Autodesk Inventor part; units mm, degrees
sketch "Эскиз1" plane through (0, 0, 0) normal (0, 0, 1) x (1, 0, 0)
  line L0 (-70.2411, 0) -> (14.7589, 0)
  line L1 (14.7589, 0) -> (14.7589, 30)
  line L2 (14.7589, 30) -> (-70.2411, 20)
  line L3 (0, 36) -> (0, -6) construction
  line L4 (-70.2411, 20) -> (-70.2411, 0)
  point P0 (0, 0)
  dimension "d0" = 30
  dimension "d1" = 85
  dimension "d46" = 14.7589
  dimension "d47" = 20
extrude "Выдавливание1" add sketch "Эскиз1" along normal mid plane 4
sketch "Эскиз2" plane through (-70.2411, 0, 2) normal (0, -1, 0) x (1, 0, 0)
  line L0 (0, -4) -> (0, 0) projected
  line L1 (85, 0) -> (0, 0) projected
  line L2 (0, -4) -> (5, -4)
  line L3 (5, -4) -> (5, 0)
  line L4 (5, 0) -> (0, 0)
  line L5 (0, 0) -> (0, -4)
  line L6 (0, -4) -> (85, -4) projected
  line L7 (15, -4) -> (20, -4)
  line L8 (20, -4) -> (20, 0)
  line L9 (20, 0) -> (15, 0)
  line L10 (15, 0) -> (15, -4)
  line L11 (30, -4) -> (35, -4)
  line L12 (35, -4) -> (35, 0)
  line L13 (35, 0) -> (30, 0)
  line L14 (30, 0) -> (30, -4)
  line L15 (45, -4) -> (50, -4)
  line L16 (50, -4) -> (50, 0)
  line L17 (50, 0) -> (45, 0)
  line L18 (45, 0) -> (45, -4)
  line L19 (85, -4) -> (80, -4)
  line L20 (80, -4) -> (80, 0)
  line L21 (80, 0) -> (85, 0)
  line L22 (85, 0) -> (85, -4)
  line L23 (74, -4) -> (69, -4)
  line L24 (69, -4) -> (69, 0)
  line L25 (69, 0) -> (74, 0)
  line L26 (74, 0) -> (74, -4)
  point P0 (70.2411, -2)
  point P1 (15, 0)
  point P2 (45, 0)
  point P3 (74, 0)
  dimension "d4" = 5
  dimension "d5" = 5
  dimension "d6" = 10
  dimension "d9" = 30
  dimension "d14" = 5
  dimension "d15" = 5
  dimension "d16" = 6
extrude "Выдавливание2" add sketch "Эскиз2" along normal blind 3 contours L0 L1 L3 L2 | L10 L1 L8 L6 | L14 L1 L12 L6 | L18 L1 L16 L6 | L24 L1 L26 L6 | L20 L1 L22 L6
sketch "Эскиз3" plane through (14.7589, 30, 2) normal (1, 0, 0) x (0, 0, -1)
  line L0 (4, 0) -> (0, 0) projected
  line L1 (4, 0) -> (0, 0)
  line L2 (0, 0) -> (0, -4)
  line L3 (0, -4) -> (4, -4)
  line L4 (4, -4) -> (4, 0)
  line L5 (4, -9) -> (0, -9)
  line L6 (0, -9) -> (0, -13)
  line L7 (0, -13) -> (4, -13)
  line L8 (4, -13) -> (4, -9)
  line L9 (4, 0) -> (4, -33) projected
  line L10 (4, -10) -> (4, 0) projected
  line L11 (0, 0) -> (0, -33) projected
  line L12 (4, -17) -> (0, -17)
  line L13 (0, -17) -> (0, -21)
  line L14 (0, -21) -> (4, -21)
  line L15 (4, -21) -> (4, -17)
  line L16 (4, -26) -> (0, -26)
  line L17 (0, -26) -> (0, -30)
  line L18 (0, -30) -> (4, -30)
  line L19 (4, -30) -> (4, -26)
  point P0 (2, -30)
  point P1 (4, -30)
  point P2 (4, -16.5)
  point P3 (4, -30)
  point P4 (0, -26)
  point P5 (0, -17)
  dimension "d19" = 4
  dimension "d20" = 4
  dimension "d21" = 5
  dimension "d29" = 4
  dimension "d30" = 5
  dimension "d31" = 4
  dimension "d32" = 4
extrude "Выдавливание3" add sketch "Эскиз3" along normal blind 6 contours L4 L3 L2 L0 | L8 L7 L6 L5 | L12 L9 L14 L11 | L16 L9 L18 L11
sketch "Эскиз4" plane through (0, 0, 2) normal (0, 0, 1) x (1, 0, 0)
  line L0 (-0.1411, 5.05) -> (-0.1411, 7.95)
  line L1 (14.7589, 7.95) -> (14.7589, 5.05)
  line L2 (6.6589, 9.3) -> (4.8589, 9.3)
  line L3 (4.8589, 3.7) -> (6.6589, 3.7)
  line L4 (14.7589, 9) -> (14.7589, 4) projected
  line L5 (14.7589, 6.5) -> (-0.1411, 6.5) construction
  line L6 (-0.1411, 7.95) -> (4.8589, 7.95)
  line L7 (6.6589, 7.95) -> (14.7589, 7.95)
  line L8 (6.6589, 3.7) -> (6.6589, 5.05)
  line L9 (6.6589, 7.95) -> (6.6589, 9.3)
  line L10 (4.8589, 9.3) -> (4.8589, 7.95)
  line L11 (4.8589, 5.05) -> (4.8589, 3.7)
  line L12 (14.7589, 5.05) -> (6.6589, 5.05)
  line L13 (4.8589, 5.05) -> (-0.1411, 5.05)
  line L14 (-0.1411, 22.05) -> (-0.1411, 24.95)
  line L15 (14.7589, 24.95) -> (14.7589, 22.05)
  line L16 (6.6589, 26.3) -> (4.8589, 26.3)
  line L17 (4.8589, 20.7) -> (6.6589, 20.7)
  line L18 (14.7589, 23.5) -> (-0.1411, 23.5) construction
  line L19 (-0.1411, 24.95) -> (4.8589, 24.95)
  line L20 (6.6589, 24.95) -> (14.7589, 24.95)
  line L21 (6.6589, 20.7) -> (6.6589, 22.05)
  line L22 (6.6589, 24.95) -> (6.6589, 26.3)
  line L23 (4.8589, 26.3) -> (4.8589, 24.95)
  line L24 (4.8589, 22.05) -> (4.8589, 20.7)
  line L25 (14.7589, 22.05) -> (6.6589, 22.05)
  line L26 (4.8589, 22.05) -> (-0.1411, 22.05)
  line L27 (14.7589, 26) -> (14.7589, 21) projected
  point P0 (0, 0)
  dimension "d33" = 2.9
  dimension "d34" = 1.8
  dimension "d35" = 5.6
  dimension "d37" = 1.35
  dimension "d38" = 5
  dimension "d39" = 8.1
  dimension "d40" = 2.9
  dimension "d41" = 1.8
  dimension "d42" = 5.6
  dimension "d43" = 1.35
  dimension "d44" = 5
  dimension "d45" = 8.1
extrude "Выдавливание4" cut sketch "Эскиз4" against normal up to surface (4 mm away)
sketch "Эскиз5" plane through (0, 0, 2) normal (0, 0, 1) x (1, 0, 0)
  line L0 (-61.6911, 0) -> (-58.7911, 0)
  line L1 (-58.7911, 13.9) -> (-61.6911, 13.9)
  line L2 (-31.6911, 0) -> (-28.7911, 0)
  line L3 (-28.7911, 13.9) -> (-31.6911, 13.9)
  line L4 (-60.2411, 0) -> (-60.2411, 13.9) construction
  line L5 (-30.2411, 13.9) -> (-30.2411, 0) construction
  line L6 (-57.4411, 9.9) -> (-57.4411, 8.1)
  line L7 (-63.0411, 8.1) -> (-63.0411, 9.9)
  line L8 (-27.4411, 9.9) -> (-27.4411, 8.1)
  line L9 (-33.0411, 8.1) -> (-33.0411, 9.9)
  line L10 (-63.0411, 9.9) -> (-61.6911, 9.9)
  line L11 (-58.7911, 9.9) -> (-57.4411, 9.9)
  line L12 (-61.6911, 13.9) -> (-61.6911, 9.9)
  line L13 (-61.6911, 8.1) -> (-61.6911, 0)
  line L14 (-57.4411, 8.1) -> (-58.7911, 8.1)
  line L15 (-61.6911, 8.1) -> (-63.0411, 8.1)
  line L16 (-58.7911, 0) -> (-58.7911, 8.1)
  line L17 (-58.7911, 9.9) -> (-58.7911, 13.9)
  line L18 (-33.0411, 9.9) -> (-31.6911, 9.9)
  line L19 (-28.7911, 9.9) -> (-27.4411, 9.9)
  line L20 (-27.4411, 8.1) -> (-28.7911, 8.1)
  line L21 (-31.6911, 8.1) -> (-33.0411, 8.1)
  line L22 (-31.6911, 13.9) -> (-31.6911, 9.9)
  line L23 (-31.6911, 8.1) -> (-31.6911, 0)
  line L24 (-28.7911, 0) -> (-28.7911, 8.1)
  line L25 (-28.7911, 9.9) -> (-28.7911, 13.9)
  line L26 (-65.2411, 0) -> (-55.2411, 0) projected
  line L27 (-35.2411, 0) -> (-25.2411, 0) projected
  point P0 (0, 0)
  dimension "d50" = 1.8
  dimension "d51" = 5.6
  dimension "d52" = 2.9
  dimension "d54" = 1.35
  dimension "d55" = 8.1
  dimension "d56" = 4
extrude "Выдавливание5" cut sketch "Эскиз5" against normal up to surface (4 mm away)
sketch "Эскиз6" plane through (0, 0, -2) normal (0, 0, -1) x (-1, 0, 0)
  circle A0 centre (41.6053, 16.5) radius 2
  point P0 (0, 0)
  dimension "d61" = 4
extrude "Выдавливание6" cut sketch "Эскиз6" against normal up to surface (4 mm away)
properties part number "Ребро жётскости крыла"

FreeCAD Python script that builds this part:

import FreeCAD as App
import Part
import Sketcher
from FreeCAD import Vector


def add_polygon(sketch, points):
    """Adds a closed chain of lines whose ends are joined by coincident constraints."""
    first, n = sketch.GeometryCount, len(points)
    for a, b in zip(points, points[1:] + points[:1]):
        sketch.addGeometry(Part.LineSegment(App.Vector(*a, 0), App.Vector(*b, 0)), False)
    for i in range(n):
        sketch.addConstraint(Sketcher.Constraint("Coincident", first + i, 2, first + (i + 1) % n, 1))

doc = App.newDocument("Part")
body = doc.addObject("PartDesign::Body", "Body")

sketch1 = doc.addObject("Sketcher::SketchObject", "Sketch")
body.addObject(sketch1)
sketch1.AttachmentSupport = (doc.XY_Plane, [""])
sketch1.MapMode = "FlatFace"
add_polygon(sketch1, [(-70, 20), (-70, 0), (15, 0), (15, 30)])
sketch1.addConstraint([
    Sketcher.Constraint("Vertical", 0),
    Sketcher.Constraint("Horizontal", 1),
    Sketcher.Constraint("Vertical", 2),
    Sketcher.Constraint("PointOnObject", 0, 2, -1),
    Sketcher.Constraint("DistanceX", 1, 1, 1, 2, 85.0),
    Sketcher.Constraint("DistanceY", 0, 2, 0, 1, 20.0),
    Sketcher.Constraint("DistanceY", 2, 1, 2, 2, 30.0),
    Sketcher.Constraint("DistanceX", -1, 1, 1, 2, 14.759),
])
pad1 = doc.addObject("PartDesign::Pad", "Pad")
body.addObject(pad1)
pad1.Profile = sketch1
pad1.Length = 4
pad1.Midplane = True

sketch2 = doc.addObject("Sketcher::SketchObject", "Sketch001")
body.addObject(sketch2)
sketch2.AttachmentSupport = (doc.XZ_Plane, [""])
sketch2.MapMode = "FlatFace"
add_polygon(sketch2, [(-70.2, 2), (-70.2, -2), (-65.2, -2), (-65.2, 2)])
add_polygon(sketch2, [(-55.2, 2), (-55.2, -2), (-50.2, -2), (-50.2, 2)])
add_polygon(sketch2, [(-40.2, 2), (-40.2, -2), (-35.2, -2), (-35.2, 2)])
add_polygon(sketch2, [(-25.2, 2), (-25.2, -2), (-20.2, -2), (-20.2, 2)])
add_polygon(sketch2, [(-1.2, 2), (-1.2, -2), (3.8, -2), (3.8, 2)])
add_polygon(sketch2, [(9.8, 2), (9.8, -2), (14.8, -2), (14.8, 2)])
sketch2.addConstraint([
    Sketcher.Constraint("Vertical", 0),
    Sketcher.Constraint("Horizontal", 1),
    Sketcher.Constraint("Vertical", 2),
    Sketcher.Constraint("Horizontal", 3),
    Sketcher.Constraint("Vertical", 4),
    Sketcher.Constraint("Horizontal", 5),
    Sketcher.Constraint("Vertical", 6),
    Sketcher.Constraint("Horizontal", 7),
    Sketcher.Constraint("Vertical", 8),
    Sketcher.Constraint("Horizontal", 9),
    Sketcher.Constraint("Vertical", 10),
    Sketcher.Constraint("Horizontal", 11),
    Sketcher.Constraint("Vertical", 12),
    Sketcher.Constraint("Horizontal", 13),
    Sketcher.Constraint("Vertical", 14),
    Sketcher.Constraint("Horizontal", 15),
    Sketcher.Constraint("Vertical", 16),
    Sketcher.Constraint("Horizontal", 17),
    Sketcher.Constraint("Vertical", 18),
    Sketcher.Constraint("Horizontal", 19),
    Sketcher.Constraint("Vertical", 20),
    Sketcher.Constraint("Horizontal", 21),
    Sketcher.Constraint("Vertical", 22),
    Sketcher.Constraint("Horizontal", 23),
    Sketcher.Constraint("Horizontal", 1, 2, 4, 2),
    Sketcher.Constraint("Horizontal", 3, 2, 6, 2),
    Sketcher.Constraint("Horizontal", 5, 2, 8, 2),
    Sketcher.Constraint("Horizontal", 7, 2, 10, 2),
    Sketcher.Constraint("Horizontal", 9, 2, 12, 2),
    Sketcher.Constraint("Horizontal", 11, 2, 14, 2),
    Sketcher.Constraint("Horizontal", 13, 2, 16, 2),
    Sketcher.Constraint("Horizontal", 15, 2, 18, 2),
    Sketcher.Constraint("Horizontal", 17, 2, 20, 2),
    Sketcher.Constraint("Horizontal", 19, 2, 22, 2),
    Sketcher.Constraint("Equal", 3, 5),
    Sketcher.Constraint("Equal", 7, 9),
    Sketcher.Constraint("Equal", 11, 13),
    Sketcher.Constraint("Equal", 15, 17),
    Sketcher.Constraint("Equal", 19, 21),
    Sketcher.Constraint("DistanceX", 1, 1, 1, 2, 5.0),
    Sketcher.Constraint("DistanceX", 1, 2, 4, 2, 10.0),
    Sketcher.Constraint("DistanceX", 5, 2, 8, 2, 10.0),
    Sketcher.Constraint("DistanceX", 9, 2, 12, 2, 10.0),
    Sketcher.Constraint("DistanceX", 17, 2, 20, 2, 6.0),
    Sketcher.Constraint("DistanceX", 13, 2, 20, 2, 30.0),
    Sketcher.Constraint("DistanceY", 0, 2, 0, 1, 4.0),
    Sketcher.Constraint("DistanceY", 0, 2, -1, 1, 2.0),
    Sketcher.Constraint("DistanceX", 0, 2, -1, 1, 70.241),
])
pad2 = doc.addObject("PartDesign::Pad", "Pad001")
body.addObject(pad2)
pad2.Profile = sketch2
pad2.Length = 3

sketch3 = doc.addObject("Sketcher::SketchObject", "Sketch002")
body.addObject(sketch3)
sketch3.AttachmentSupport = (doc.YZ_Plane, [""])
sketch3.MapMode = "FlatFace"
sketch3.AttachmentOffset = App.Placement(Vector(0, 0, 14.7589), App.Rotation())
add_polygon(sketch3, [(26, -2), (30, -2), (30, 2), (26, 2)])
add_polygon(sketch3, [(17, -2), (21, -2), (21, 2), (17, 2)])
add_polygon(sketch3, [(13, -2), (13, 2), (9, 2), (9, -2)])
add_polygon(sketch3, [(4, -2), (4, 2), (0, 2), (0, -2)])
sketch3.addConstraint([
    Sketcher.Constraint("Horizontal", 0),
    Sketcher.Constraint("Vertical", 1),
    Sketcher.Constraint("Horizontal", 2),
    Sketcher.Constraint("Vertical", 3),
    Sketcher.Constraint("Horizontal", 4),
    Sketcher.Constraint("Vertical", 5),
    Sketcher.Constraint("Horizontal", 6),
    Sketcher.Constraint("Vertical", 7),
    Sketcher.Constraint("Vertical", 8),
    Sketcher.Constraint("Horizontal", 9),
    Sketcher.Constraint("Vertical", 10),
    Sketcher.Constraint("Horizontal", 11),
    Sketcher.Constraint("Vertical", 12),
    Sketcher.Constraint("Horizontal", 13),
    Sketcher.Constraint("Vertical", 14),
    Sketcher.Constraint("Horizontal", 15),
    Sketcher.Constraint("Symmetric", 13, 2, 14, 2, -1, 1),
    Sketcher.Constraint("Horizontal", 3, 2, 4, 2),
    Sketcher.Constraint("Horizontal", 2, 2, 5, 2),
    Sketcher.Constraint("Horizontal", 6, 2, 8, 2),
    Sketcher.Constraint("Horizontal", 7, 2, 10, 2),
    Sketcher.Constraint("Horizontal", 9, 2, 12, 2),
    Sketcher.Constraint("Horizontal", 11, 2, 14, 2),
    Sketcher.Constraint("Equal", 2, 4),
    Sketcher.Constraint("Equal", 6, 9),
    Sketcher.Constraint("Equal", 11, 13),
    Sketcher.Constraint("Equal", 15, 1),
    Sketcher.Constraint("DistanceX", 0, 1, 0, 2, 4.0),
    Sketcher.Constraint("DistanceX", 4, 2, 3, 2, 5.0),
    Sketcher.Constraint("DistanceX", 8, 2, 6, 2, 4.0),
    Sketcher.Constraint("DistanceX", 12, 2, 9, 2, 5.0),
])
pad3 = doc.addObject("PartDesign::Pad", "Pad002")
body.addObject(pad3)
pad3.Profile = sketch3
pad3.Length = 6

sketch4 = doc.addObject("Sketcher::SketchObject", "Sketch003")
body.addObject(sketch4)
sketch4.AttachmentSupport = (doc.XY_Plane, [""])
sketch4.MapMode = "FlatFace"
sketch4.AttachmentOffset = App.Placement(Vector(0, 0, 2), App.Rotation())
add_polygon(sketch4, [(-0.1, 8), (-0.1, 5), (4.9, 5), (4.9, 3.7), (6.7, 3.7), (6.7, 5), (14.8, 5), (14.8, 8), (6.7, 8), (6.7, 9.3), (4.9, 9.3), (4.9, 8)])
add_polygon(sketch4, [(-0.1, 24.9), (-0.1, 22.1), (4.9, 22.1), (4.9, 20.7), (6.7, 20.7), (6.7, 22.1), (14.8, 22.1), (14.8, 24.9), (6.7, 24.9), (6.7, 26.3), (4.9, 26.3), (4.9, 24.9)])
sketch4.addConstraint([
    Sketcher.Constraint("Vertical", 0),
    Sketcher.Constraint("Horizontal", 1),
    Sketcher.Constraint("Vertical", 2),
    Sketcher.Constraint("Horizontal", 3),
    Sketcher.Constraint("Vertical", 4),
    Sketcher.Constraint("Horizontal", 5),
    Sketcher.Constraint("Vertical", 6),
    Sketcher.Constraint("Horizontal", 7),
    Sketcher.Constraint("Vertical", 8),
    Sketcher.Constraint("Horizontal", 9),
    Sketcher.Constraint("Vertical", 10),
    Sketcher.Constraint("Horizontal", 11),
    Sketcher.Constraint("Vertical", 12),
    Sketcher.Constraint("Horizontal", 13),
    Sketcher.Constraint("Vertical", 14),
    Sketcher.Constraint("Horizontal", 15),
    Sketcher.Constraint("Vertical", 16),
    Sketcher.Constraint("Horizontal", 17),
    Sketcher.Constraint("Vertical", 18),
    Sketcher.Constraint("Horizontal", 19),
    Sketcher.Constraint("Vertical", 20),
    Sketcher.Constraint("Horizontal", 21),
    Sketcher.Constraint("Vertical", 22),
    Sketcher.Constraint("Horizontal", 23),
    Sketcher.Constraint("Horizontal", 1, 2, 4, 2),
    Sketcher.Constraint("Horizontal", 7, 2, 10, 2),
    Sketcher.Constraint("Horizontal", 13, 2, 16, 2),
    Sketcher.Constraint("Horizontal", 19, 2, 22, 2),
    Sketcher.Constraint("Vertical", 4, 2, 7, 2),
    Sketcher.Constraint("Vertical", 2, 2, 9, 2),
    Sketcher.Constraint("Vertical", 11, 2, 12, 2),
    Sketcher.Constraint("Vertical", 10, 2, 13, 2),
    Sketcher.Constraint("Vertical", 8, 2, 15, 2),
    Sketcher.Constraint("Vertical", 6, 2, 17, 2),
    Sketcher.Constraint("Vertical", 16, 2, 19, 2),
    Sketcher.Constraint("Vertical", 14, 2, 21, 2),
    Sketcher.Constraint("Equal", 4, 8),
    Sketcher.Constraint("Equal", 6, 12),
    Sketcher.Constraint("Equal", 10, 14),
    Sketcher.Constraint("Equal", 16, 20),
    Sketcher.Constraint("DistanceX", 1, 1, 1, 2, 5.0),
    Sketcher.Constraint("DistanceX", 3, 1, 3, 2, 1.8),
    Sketcher.Constraint("DistanceX", 5, 1, 5, 2, 8.1),
    Sketcher.Constraint("DistanceY", 0, 2, 0, 1, 2.9),
    Sketcher.Constraint("DistanceY", 2, 2, 2, 1, 1.35),
    Sketcher.Constraint("DistanceY", -1, 1, 2, 2, 3.7),
    Sketcher.Constraint("DistanceY", -1, 1, 14, 2, 20.7),
    Sketcher.Constraint("DistanceX", 0, 2, -1, 1, 0.141),
])
pocket1 = doc.addObject("PartDesign::Pocket", "Pocket")
body.addObject(pocket1)
pocket1.Profile = sketch4
pocket1.Length = 4

sketch5 = doc.addObject("Sketcher::SketchObject", "Sketch004")
body.addObject(sketch5)
sketch5.AttachmentSupport = (doc.XY_Plane, [""])
sketch5.MapMode = "FlatFace"
sketch5.AttachmentOffset = App.Placement(Vector(0, 0, 2), App.Rotation())
add_polygon(sketch5, [(-61.7, 8.1), (-61.7, 0), (-58.8, 0), (-58.8, 8.1), (-57.4, 8.1), (-57.4, 9.9), (-58.8, 9.9), (-58.8, 13.9), (-61.7, 13.9), (-61.7, 9.9), (-63, 9.9), (-63, 8.1)])
add_polygon(sketch5, [(-31.7, 8.1), (-31.7, 0), (-28.8, 0), (-28.8, 8.1), (-27.4, 8.1), (-27.4, 9.9), (-28.8, 9.9), (-28.8, 13.9), (-31.7, 13.9), (-31.7, 9.9), (-33, 9.9), (-33, 8.1)])
sketch5.addConstraint([
    Sketcher.Constraint("Vertical", 0),
    Sketcher.Constraint("Horizontal", 1),
    Sketcher.Constraint("Vertical", 2),
    Sketcher.Constraint("Horizontal", 3),
    Sketcher.Constraint("Vertical", 4),
    Sketcher.Constraint("Horizontal", 5),
    Sketcher.Constraint("Vertical", 6),
    Sketcher.Constraint("Horizontal", 7),
    Sketcher.Constraint("Vertical", 8),
    Sketcher.Constraint("Horizontal", 9),
    Sketcher.Constraint("Vertical", 10),
    Sketcher.Constraint("Horizontal", 11),
    Sketcher.Constraint("Vertical", 12),
    Sketcher.Constraint("Horizontal", 13),
    Sketcher.Constraint("Vertical", 14),
    Sketcher.Constraint("Horizontal", 15),
    Sketcher.Constraint("Vertical", 16),
    Sketcher.Constraint("Horizontal", 17),
    Sketcher.Constraint("Vertical", 18),
    Sketcher.Constraint("Horizontal", 19),
    Sketcher.Constraint("Vertical", 20),
    Sketcher.Constraint("Horizontal", 21),
    Sketcher.Constraint("Vertical", 22),
    Sketcher.Constraint("Horizontal", 23),
    Sketcher.Constraint("PointOnObject", 0, 2, -1),
    Sketcher.Constraint("PointOnObject", 12, 2, -1),
    Sketcher.Constraint("Horizontal", 5, 2, 8, 2),
    Sketcher.Constraint("Horizontal", 3, 2, 10, 2),
    Sketcher.Constraint("Horizontal", 11, 2, 14, 2),
    Sketcher.Constraint("Horizontal", 9, 2, 16, 2),
    Sketcher.Constraint("Horizontal", 7, 2, 18, 2),
    Sketcher.Constraint("Horizontal", 17, 2, 20, 2),
    Sketcher.Constraint("Horizontal", 15, 2, 22, 2),
    Sketcher.Constraint("Vertical", 2, 2, 5, 2),
    Sketcher.Constraint("Vertical", 0, 2, 7, 2),
    Sketcher.Constraint("Vertical", 14, 2, 17, 2),
    Sketcher.Constraint("Vertical", 12, 2, 19, 2),
    Sketcher.Constraint("Equal", 5, 9),
    Sketcher.Constraint("Equal", 7, 13),
    Sketcher.Constraint("Equal", 11, 15),
    Sketcher.Constraint("Equal", 17, 21),
    Sketcher.Constraint("DistanceY", 6, 1, 6, 2, 4.0),
    Sketcher.Constraint("DistanceX", 1, 1, 1, 2, 2.9),
    Sketcher.Constraint("DistanceY", 0, 2, 0, 1, 8.1),
    Sketcher.Constraint("DistanceY", 4, 1, 4, 2, 1.8),
    Sketcher.Constraint("DistanceX", 3, 1, 3, 2, 1.35),
    Sketcher.Constraint("DistanceX", 1, 2, 13, 2, 30.0),
    Sketcher.Constraint("DistanceX", 0, 2, -1, 1, 61.691),
])
pocket2 = doc.addObject("PartDesign::Pocket", "Pocket001")
body.addObject(pocket2)
pocket2.Profile = sketch5
pocket2.Length = 4

sketch6 = doc.addObject("Sketcher::SketchObject", "Sketch005")
body.addObject(sketch6)
sketch6.AttachmentSupport = (doc.XY_Plane, [""])
sketch6.MapMode = "FlatFace"
sketch6.AttachmentOffset = App.Placement(Vector(0, 0, -2), App.Rotation())
sketch6.addGeometry(Part.Circle(Vector(-41.6, 16.5, 0), Vector(0, 0, 1), 2), False)
sketch6.addConstraint([
    Sketcher.Constraint("Diameter", 0, 4.0),
    Sketcher.Constraint("DistanceY", -1, 1, 0, 3, 16.5),
    Sketcher.Constraint("DistanceX", 0, 3, -1, 1, 41.6053),
])
pocket3 = doc.addObject("PartDesign::Pocket", "Pocket002")
body.addObject(pocket3)
pocket3.Profile = sketch6
pocket3.Length = 4
pocket3.Reversed = True

doc.recompute()
